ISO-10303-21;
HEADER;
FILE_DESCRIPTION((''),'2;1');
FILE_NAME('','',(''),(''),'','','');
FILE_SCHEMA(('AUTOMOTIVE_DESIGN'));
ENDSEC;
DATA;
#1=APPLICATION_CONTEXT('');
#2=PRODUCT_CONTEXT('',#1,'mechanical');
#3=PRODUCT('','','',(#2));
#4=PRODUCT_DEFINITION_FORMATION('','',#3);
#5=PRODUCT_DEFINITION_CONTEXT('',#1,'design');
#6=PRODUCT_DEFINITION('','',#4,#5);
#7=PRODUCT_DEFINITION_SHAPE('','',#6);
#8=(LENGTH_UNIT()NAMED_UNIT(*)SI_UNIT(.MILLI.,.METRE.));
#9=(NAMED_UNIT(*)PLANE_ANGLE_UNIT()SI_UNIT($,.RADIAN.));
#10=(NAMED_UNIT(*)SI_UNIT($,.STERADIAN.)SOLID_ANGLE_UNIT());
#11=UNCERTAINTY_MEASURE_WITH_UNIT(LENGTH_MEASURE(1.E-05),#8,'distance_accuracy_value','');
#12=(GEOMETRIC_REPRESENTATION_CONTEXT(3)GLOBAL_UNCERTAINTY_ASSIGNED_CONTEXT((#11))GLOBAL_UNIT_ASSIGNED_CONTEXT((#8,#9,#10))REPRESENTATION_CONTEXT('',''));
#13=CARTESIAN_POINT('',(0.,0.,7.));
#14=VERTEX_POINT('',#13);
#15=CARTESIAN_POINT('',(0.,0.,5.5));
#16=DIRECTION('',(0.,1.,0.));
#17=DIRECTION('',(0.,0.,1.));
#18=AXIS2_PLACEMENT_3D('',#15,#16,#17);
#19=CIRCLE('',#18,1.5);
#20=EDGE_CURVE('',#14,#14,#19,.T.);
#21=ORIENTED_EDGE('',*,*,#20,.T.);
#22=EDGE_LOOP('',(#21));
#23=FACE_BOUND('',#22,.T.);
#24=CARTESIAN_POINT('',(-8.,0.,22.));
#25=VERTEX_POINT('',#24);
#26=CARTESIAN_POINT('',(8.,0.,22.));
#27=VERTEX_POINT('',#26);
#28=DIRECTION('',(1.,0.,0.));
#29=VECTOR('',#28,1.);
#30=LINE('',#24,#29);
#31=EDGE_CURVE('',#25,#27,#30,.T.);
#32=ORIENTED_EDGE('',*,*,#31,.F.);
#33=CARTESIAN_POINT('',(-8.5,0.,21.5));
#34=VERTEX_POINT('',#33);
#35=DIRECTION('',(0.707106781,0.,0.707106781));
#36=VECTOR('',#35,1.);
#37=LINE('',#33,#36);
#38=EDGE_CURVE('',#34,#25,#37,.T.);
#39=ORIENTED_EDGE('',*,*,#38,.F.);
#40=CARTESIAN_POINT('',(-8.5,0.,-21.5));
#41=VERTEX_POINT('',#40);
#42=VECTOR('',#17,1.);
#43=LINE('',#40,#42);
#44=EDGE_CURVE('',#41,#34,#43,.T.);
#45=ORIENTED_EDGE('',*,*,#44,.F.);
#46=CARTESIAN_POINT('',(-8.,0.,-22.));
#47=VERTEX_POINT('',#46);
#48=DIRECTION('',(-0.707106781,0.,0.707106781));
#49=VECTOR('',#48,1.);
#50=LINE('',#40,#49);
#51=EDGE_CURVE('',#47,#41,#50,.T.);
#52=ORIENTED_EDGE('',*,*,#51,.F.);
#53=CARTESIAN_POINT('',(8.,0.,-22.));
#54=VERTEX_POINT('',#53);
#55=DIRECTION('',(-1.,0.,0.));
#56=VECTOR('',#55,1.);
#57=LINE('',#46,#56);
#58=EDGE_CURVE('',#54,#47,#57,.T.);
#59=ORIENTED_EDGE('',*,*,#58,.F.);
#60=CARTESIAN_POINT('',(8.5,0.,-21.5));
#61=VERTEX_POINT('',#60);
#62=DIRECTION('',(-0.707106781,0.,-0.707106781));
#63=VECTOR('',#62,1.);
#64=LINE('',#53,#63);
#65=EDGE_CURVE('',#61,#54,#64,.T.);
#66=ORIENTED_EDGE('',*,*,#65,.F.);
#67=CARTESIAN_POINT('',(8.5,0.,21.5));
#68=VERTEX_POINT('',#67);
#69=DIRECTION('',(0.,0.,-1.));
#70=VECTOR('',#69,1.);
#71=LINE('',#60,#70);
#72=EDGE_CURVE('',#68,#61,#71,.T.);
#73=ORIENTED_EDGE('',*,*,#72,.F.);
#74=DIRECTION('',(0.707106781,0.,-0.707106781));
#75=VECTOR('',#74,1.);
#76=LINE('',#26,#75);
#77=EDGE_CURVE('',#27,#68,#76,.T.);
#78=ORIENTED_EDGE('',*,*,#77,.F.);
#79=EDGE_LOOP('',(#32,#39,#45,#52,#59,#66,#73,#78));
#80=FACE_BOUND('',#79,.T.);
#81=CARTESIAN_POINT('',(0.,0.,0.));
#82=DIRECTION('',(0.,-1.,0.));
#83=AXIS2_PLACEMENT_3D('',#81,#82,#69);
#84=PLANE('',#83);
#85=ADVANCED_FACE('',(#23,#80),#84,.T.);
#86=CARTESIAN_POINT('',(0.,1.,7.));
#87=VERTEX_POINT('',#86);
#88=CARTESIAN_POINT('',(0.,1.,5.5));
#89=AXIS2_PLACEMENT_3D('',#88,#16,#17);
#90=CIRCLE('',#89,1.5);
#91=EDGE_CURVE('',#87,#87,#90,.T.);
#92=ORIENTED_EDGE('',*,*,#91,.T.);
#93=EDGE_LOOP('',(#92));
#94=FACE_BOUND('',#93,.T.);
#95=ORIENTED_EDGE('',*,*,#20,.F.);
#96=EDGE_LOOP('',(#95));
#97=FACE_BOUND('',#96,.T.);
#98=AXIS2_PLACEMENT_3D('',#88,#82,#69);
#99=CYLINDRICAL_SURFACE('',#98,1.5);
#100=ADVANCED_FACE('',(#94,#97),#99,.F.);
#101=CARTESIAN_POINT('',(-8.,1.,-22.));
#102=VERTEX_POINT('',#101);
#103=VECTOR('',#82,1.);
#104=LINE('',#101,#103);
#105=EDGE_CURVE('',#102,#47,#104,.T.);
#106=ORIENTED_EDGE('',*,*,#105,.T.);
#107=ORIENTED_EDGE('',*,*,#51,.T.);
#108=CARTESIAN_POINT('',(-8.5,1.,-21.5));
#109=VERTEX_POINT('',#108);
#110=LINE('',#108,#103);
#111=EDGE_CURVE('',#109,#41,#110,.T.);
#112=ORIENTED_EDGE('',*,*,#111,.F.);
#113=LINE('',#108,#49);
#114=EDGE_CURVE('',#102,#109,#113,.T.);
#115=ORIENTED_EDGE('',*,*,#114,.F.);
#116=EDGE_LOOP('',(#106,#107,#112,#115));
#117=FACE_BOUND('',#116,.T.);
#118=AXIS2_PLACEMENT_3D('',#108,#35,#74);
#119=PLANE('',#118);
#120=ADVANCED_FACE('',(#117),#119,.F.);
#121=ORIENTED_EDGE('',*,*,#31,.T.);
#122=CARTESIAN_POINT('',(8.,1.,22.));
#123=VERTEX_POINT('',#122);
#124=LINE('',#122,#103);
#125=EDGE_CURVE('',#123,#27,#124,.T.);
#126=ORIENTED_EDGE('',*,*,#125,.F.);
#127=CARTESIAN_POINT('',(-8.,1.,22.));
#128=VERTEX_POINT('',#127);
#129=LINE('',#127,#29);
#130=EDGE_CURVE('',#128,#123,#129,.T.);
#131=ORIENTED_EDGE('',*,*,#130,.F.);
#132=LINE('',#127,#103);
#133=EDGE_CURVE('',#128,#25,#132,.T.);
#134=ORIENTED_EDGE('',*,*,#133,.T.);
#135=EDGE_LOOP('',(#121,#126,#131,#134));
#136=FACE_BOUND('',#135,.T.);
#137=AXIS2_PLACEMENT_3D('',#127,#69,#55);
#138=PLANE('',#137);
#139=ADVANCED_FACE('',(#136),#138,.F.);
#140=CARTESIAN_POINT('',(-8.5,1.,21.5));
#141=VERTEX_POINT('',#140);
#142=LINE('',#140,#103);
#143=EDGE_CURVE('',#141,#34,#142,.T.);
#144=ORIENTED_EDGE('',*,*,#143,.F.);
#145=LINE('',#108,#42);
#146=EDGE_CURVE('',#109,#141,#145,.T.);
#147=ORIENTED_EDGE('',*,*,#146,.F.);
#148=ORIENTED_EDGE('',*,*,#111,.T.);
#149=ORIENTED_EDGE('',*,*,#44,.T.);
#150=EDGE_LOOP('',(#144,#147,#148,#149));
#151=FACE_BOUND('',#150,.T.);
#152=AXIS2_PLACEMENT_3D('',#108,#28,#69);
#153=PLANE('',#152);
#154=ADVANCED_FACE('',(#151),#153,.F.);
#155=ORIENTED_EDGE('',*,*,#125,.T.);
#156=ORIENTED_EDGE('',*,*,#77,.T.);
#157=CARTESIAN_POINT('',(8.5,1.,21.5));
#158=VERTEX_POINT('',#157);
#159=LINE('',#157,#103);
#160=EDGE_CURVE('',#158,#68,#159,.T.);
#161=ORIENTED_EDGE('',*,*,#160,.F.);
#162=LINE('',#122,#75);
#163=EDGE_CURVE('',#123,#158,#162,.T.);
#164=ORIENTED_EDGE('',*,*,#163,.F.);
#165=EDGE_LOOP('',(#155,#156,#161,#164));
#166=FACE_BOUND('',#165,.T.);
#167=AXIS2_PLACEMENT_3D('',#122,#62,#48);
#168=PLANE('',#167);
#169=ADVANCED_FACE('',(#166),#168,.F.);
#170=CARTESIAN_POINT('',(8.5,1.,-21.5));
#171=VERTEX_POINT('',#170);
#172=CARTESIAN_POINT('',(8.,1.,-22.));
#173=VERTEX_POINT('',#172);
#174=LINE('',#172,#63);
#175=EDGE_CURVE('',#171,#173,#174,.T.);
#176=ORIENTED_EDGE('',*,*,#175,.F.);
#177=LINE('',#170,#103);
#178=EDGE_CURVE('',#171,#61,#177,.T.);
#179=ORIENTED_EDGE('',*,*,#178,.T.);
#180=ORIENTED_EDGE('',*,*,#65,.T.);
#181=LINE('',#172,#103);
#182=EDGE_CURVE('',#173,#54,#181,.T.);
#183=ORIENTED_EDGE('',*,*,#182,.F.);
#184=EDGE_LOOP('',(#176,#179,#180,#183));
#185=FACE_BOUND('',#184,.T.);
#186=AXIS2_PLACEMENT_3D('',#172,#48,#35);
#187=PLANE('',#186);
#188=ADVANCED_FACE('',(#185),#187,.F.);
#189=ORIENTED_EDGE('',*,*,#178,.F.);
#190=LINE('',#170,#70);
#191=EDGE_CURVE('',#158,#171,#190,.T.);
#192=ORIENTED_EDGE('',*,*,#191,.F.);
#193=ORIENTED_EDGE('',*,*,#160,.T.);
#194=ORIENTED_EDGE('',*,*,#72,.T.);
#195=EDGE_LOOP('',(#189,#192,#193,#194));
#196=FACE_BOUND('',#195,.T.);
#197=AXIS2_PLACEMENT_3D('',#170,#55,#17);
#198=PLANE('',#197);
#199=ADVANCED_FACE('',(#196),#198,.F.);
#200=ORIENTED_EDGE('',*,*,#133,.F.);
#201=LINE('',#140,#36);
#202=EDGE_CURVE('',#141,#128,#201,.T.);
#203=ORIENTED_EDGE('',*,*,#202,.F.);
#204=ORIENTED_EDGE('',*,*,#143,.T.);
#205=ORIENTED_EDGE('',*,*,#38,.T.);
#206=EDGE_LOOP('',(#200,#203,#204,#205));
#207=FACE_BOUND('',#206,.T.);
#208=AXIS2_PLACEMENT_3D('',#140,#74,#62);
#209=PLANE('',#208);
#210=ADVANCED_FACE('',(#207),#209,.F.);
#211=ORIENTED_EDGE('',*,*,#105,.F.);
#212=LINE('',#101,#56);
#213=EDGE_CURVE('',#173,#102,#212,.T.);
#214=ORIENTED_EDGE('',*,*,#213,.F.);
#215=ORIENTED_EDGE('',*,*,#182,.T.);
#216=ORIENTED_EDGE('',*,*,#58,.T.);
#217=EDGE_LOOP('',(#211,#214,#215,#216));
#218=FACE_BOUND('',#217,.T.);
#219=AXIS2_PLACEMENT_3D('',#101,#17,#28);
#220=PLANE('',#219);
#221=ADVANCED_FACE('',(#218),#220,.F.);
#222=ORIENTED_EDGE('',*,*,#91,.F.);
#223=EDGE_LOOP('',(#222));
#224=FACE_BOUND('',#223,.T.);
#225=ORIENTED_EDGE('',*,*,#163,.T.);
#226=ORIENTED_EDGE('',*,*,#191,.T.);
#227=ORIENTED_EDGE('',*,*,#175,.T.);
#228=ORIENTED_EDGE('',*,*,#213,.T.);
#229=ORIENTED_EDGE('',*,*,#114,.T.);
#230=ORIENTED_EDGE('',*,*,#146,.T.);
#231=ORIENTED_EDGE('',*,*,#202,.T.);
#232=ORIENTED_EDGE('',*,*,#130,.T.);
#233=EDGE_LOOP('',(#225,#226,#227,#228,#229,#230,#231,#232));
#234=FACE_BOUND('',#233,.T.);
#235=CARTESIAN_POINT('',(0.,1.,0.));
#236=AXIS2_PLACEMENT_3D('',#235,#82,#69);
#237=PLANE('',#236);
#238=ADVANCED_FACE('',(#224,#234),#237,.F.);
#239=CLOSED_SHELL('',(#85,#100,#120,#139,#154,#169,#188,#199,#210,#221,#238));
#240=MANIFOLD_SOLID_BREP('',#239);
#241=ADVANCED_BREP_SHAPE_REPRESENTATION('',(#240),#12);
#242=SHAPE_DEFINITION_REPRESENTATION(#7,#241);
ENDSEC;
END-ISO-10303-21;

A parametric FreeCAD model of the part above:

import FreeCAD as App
import Part
import Sketcher


def add_polygon(sketch, points):
    """Adds a closed chain of lines whose ends are joined by coincident constraints."""
    first, n = sketch.GeometryCount, len(points)
    for a, b in zip(points, points[1:] + points[:1]):
        sketch.addGeometry(Part.LineSegment(App.Vector(*a, 0), App.Vector(*b, 0)), False)
    for i in range(n):
        sketch.addConstraint(Sketcher.Constraint("Coincident", first + i, 2, first + (i + 1) % n, 1))

doc = App.newDocument("Part")
body = doc.addObject("PartDesign::Body", "Body")

sketch1 = body.newObject("Sketcher::SketchObject", "Sketch")
sketch1.AttachmentSupport = (doc.getObject("XZ_Plane"), [""])
sketch1.MapMode = "FlatFace"
add_polygon(sketch1, [(8.5, -21.5), (8, -22), (-8, -22), (-8.5, -21.5), (-8.5, 21.5), (-8, 22), (8, 22), (8.5, 21.5)])
sketch1.addGeometry(Part.Circle(App.Vector(0, 5.5, 0), App.Vector(0, 0, 1), 1.5), False)
sketch1.addConstraint(Sketcher.Constraint("Horizontal", 1))
sketch1.addConstraint(Sketcher.Constraint("Vertical", 3))
sketch1.addConstraint(Sketcher.Constraint("Horizontal", 5))
sketch1.addConstraint(Sketcher.Constraint("Vertical", 7))
sketch1.addConstraint(Sketcher.Constraint("Symmetric", 0, 2, 4, 2, -1, 1))
sketch1.addConstraint(Sketcher.Constraint("Symmetric", 2, 2, 6, 2, -1, 1))
sketch1.addConstraint(Sketcher.Constraint("PointOnObject", 8, 3, -2))
sketch1.addConstraint(Sketcher.Constraint("Perpendicular", 0, 2))
sketch1.addConstraint(Sketcher.Constraint("Perpendicular", 2, 4))
sketch1.addConstraint(Sketcher.Constraint("Perpendicular", 4, 6))
sketch1.addConstraint(Sketcher.Constraint("Horizontal", 3, 2, 6, 2))
sketch1.addConstraint(Sketcher.Constraint("Vertical", 1, 2, 4, 2))
sketch1.addConstraint(Sketcher.Constraint("Diameter", 8, 3.0))
sketch1.addConstraint(Sketcher.Constraint("DistanceX", 1, 2, 1, 1, 16.0))
sketch1.addConstraint(Sketcher.Constraint("DistanceY", 3, 1, 3, 2, 43.0))
sketch1.addConstraint(Sketcher.Constraint("DistanceY", 0, 2, -1, 1, 22.0))
sketch1.addConstraint(Sketcher.Constraint("DistanceY", 2, 2, 8, 3, 27.0))
pad1 = body.newObject("PartDesign::Pad", "Pad")
pad1.Profile = sketch1
pad1.Length = 1
pad1.Reversed = True

doc.recompute()
